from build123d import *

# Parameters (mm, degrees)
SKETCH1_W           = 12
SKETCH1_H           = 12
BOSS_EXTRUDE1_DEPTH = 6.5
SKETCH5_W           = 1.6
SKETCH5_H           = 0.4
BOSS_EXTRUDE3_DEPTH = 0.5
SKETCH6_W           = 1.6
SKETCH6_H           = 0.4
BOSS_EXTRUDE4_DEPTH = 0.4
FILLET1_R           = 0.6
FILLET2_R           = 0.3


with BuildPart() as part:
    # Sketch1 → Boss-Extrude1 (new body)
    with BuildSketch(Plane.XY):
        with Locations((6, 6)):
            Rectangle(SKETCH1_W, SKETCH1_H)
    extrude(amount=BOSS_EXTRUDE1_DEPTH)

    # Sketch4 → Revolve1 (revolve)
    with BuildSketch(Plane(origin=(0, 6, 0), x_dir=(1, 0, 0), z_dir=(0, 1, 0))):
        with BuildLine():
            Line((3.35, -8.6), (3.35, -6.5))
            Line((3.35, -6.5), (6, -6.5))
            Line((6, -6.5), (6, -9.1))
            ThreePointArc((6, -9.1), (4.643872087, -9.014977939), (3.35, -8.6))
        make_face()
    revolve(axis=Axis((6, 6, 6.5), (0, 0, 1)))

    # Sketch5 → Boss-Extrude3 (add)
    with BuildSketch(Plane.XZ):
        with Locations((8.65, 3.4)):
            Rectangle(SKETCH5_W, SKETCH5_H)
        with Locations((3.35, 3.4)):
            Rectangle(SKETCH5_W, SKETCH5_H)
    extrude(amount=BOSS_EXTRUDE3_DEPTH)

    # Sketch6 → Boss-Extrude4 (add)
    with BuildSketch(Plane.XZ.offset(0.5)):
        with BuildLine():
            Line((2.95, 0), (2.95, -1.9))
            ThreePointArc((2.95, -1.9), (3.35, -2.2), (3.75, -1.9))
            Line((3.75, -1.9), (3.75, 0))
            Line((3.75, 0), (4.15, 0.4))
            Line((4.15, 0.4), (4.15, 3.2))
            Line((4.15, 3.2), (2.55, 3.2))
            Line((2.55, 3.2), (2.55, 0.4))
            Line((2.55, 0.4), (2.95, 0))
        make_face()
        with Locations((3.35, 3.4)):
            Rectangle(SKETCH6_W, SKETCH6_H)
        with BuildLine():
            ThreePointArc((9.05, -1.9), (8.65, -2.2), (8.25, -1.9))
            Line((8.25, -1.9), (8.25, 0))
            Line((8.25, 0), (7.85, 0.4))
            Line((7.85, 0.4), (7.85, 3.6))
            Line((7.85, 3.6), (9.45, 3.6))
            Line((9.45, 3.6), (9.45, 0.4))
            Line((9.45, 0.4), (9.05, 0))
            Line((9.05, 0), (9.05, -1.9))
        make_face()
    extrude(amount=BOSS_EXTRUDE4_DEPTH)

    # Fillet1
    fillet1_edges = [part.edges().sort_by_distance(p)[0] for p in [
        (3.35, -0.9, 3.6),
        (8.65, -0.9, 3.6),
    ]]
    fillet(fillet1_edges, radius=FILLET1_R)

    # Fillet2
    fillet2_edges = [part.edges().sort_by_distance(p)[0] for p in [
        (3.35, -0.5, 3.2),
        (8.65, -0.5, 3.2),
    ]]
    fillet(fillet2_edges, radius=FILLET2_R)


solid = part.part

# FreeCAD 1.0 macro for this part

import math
import FreeCAD as App
import Part
import Sketcher
from FreeCAD import Vector
Q = App.Units.Quantity


def edges_at(feature, points):
    """Names of the edges that pass closest to the given points."""
    edges = feature.Shape.Edges
    near = lambda p: min(range(len(edges)), key=lambda i: edges[i].distToShape(Part.Vertex(*p))[0])
    return sorted({f"Edge{near(p) + 1}" for p in points})

doc = App.newDocument("Part")
params = doc.addObject("Spreadsheet::Sheet", "Params")
for row, (alias, value) in enumerate([
    ("sketch1_width", "12 mm"),
    ("pad1_length", "6.5 mm"),
    ("sketch2_height", "2.1 mm"),
    ("sketch2_height2", "2.6 mm"),
    ("sketch2_width", "2.65 mm"),
    ("revolution_angle", "360 deg"),
    ("sketch3_width", "1.6 mm"),
    ("sketch3_height", "0.4 mm"),
    ("pad2_length", "0.5 mm"),
    ("sketch4_width", "1.6 mm"),
    ("sketch4_height", "1.9 mm"),
    ("sketch4_height2", "3.2 mm"),
    ("pad3_length", "0.4 mm"),
    ("fillet_radius", "0.6 mm"),
    ("fillet2_radius", "0.3 mm"),
], start=1):
    params.set(f"A{row}", alias)
    params.set(f"B{row}", "=" + value)
    params.setAlias(f"B{row}", alias)

body = doc.addObject("PartDesign::Body", "Body")

# Sketch on XY plane
sketch1 = body.newObject("Sketcher::SketchObject", "Sketch")
sketch1.AttachmentSupport = (doc.getObject("XY_Plane"), [""])
sketch1.MapMode = "FlatFace"
sketch1.addGeometry([
    Part.LineSegment(Vector(0, 12, 0), Vector(0, 0, 0)),
    Part.LineSegment(Vector(0, 0, 0), Vector(12, 0, 0)),
    Part.LineSegment(Vector(12, 0, 0), Vector(12, 12, 0)),
    Part.LineSegment(Vector(12, 12, 0), Vector(0, 12, 0)),
], False)
sketch1.addConstraint([
    Sketcher.Constraint("Coincident", 0, 2, 1, 1),
    Sketcher.Constraint("Coincident", 1, 2, 2, 1),
    Sketcher.Constraint("Coincident", 2, 2, 3, 1),
    Sketcher.Constraint("Coincident", 3, 2, 0, 1),
    Sketcher.Constraint("Vertical", 0),
    Sketcher.Constraint("Horizontal", 1),
    Sketcher.Constraint("Vertical", 2),
    Sketcher.Constraint("Horizontal", 3),
    Sketcher.Constraint("Coincident", 0, 2, -1, 1),
    Sketcher.Constraint("Equal", 3, 0),
    Sketcher.Constraint("DistanceX", 1, 1, 1, 2, Q("12 mm")),
])
sketch1.setExpression("Constraints[10]", "Params.sketch1_width")
pad1 = body.newObject("PartDesign::Pad", "Pad")
pad1.Profile = sketch1
pad1.setExpression("Length", "Params.pad1_length")

# Sketch on XZ plane
sketch2 = body.newObject("Sketcher::SketchObject", "Sketch001")
sketch2.AttachmentSupport = (doc.getObject("XZ_Plane"), [""])
sketch2.MapMode = "FlatFace"
sketch2.AttachmentOffset = App.Placement(Vector(0, 0, -6), App.Rotation())
sketch2.addGeometry([
    Part.LineSegment(Vector(3.4, 6.5, 0), Vector(3.4, 8.6, 0)),
    Part.ArcOfCircle(Part.Circle(Vector(5.7, 3.6, 0), Vector(0, 0, 1), 5.5), math.radians(86), math.radians(115)),
    Part.LineSegment(Vector(6, 9.1, 0), Vector(6, 6.5, 0)),
    Part.LineSegment(Vector(6, 6.5, 0), Vector(3.4, 6.5, 0)),
], False)
sketch2.addGeometry(Part.LineSegment(Vector(6, 3.6, 0), Vector(6, 9.1, 0)), True)  # axis
sketch2.addConstraint([
    Sketcher.Constraint("Coincident", 0, 2, 1, 2),
    Sketcher.Constraint("Coincident", 1, 1, 2, 1),
    Sketcher.Constraint("Coincident", 2, 2, 3, 1),
    Sketcher.Constraint("Coincident", 3, 2, 0, 1),
    Sketcher.Constraint("Vertical", 0),
    Sketcher.Constraint("Vertical", 2),
    Sketcher.Constraint("Horizontal", 3),
    Sketcher.Constraint("Vertical", 4),
    Sketcher.Constraint("Coincident", 4, 2, 1, 1),
    Sketcher.Constraint("Horizontal", 1, 3, 4, 1),
    Sketcher.Constraint("DistanceY", 0, 1, 0, 2, Q("2.1 mm")),
    Sketcher.Constraint("DistanceY", 2, 2, 2, 1, Q("2.6 mm")),
    Sketcher.Constraint("DistanceX", -1, 1, 1, 1, Q("6 mm")),
    Sketcher.Constraint("DistanceX", 3, 2, 3, 1, Q("2.65 mm")),
    Sketcher.Constraint("DistanceY", -1, 1, 0, 2, Q("8.6 mm")),
    Sketcher.Constraint("DistanceY", 4, 1, 4, 2, Q("5.488298 mm")),
])
sketch2.setExpression("Constraints[10]", "Params.sketch2_height")
sketch2.setExpression("Constraints[11]", "Params.sketch2_height2")
sketch2.setExpression("Constraints[13]", "Params.sketch2_width")
revolution = body.newObject("PartDesign::Revolution", "Revolution")
revolution.Profile = sketch2
revolution.ReferenceAxis = (sketch2, ["Axis0"])
revolution.setExpression("Angle", "Params.revolution_angle")

# Sketch on XZ plane
sketch3 = body.newObject("Sketcher::SketchObject", "Sketch002")
sketch3.AttachmentSupport = (doc.getObject("XZ_Plane"), [""])
sketch3.MapMode = "FlatFace"
sketch3.addGeometry([
    Part.LineSegment(Vector(7.85, 3.6, 0), Vector(7.85, 3.2, 0)),  # 0
    Part.LineSegment(Vector(7.85, 3.2, 0), Vector(9.45, 3.2, 0)),  # 1
    Part.LineSegment(Vector(9.45, 3.2, 0), Vector(9.45, 3.6, 0)),  # 2
    Part.LineSegment(Vector(9.45, 3.6, 0), Vector(7.85, 3.6, 0)),  # 3
    Part.LineSegment(Vector(2.55, 3.6, 0), Vector(2.55, 3.2, 0)),  # 4
    Part.LineSegment(Vector(2.55, 3.2, 0), Vector(4.15, 3.2, 0)),  # 5
    Part.LineSegment(Vector(4.15, 3.2, 0), Vector(4.15, 3.6, 0)),  # 6
    Part.LineSegment(Vector(4.15, 3.6, 0), Vector(2.55, 3.6, 0)),  # 7
], False)
sketch3.addConstraint([
    Sketcher.Constraint("Coincident", 0, 2, 1, 1),
    Sketcher.Constraint("Coincident", 1, 2, 2, 1),
    Sketcher.Constraint("Coincident", 2, 2, 3, 1),
    Sketcher.Constraint("Coincident", 3, 2, 0, 1),
    Sketcher.Constraint("Coincident", 4, 2, 5, 1),
    Sketcher.Constraint("Coincident", 5, 2, 6, 1),
    Sketcher.Constraint("Coincident", 6, 2, 7, 1),
    Sketcher.Constraint("Coincident", 7, 2, 4, 1),
    Sketcher.Constraint("Vertical", 0),
    Sketcher.Constraint("Horizontal", 1),
    Sketcher.Constraint("Vertical", 2),
    Sketcher.Constraint("Horizontal", 3),
    Sketcher.Constraint("Vertical", 4),
    Sketcher.Constraint("Horizontal", 5),
    Sketcher.Constraint("Vertical", 6),
    Sketcher.Constraint("Horizontal", 7),
    Sketcher.Constraint("Horizontal", 1, 2, 4, 2),
    Sketcher.Constraint("Horizontal", 3, 2, 6, 2),
    Sketcher.Constraint("Equal", 3, 5),
    Sketcher.Constraint("DistanceX", 1, 1, 1, 2, Q("1.6 mm")),
    Sketcher.Constraint("DistanceY", 0, 2, 0, 1, Q("0.4 mm")),
    Sketcher.Constraint("DistanceY", -1, 1, 0, 2, Q("3.2 mm")),
    Sketcher.Constraint("DistanceX", 4, 2, 0, 2, Q("5.3 mm")),
    Sketcher.Constraint("DistanceX", -1, 1, 0, 2, Q("7.85 mm")),
])
sketch3.setExpression("Constraints[19]", "Params.sketch3_width")
sketch3.setExpression("Constraints[20]", "Params.sketch3_height")
pad2 = body.newObject("PartDesign::Pad", "Pad001")
pad2.Profile = sketch3
pad2.setExpression("Length", "Params.pad2_length")

# Sketch on XZ plane
sketch4 = body.newObject("Sketcher::SketchObject", "Sketch003")
sketch4.AttachmentSupport = (doc.getObject("XZ_Plane"), [""])
sketch4.MapMode = "FlatFace"
sketch4.AttachmentOffset = App.Placement(Vector(0, 0, 0.5), App.Rotation())
sketch4.addGeometry([
    Part.LineSegment(Vector(2.95, 0, 0), Vector(2.95, -1.9, 0)),  # 0
    Part.ArcOfCircle(Part.Circle(Vector(3.35, -1.78, 0), Vector(0, 0, 1), 0.42), math.radians(-164), math.radians(-16)),  # 1
    Part.LineSegment(Vector(3.75, -1.9, 0), Vector(3.75, 0, 0)),  # 2
    Part.LineSegment(Vector(3.75, 0, 0), Vector(4.15, 0.4, 0)),  # 3
    Part.LineSegment(Vector(4.15, 0.4, 0), Vector(4.15, 3.6, 0)),  # 4
    Part.LineSegment(Vector(4.15, 3.6, 0), Vector(2.55, 3.6, 0)),  # 5
    Part.LineSegment(Vector(2.55, 3.6, 0), Vector(2.55, 0.4, 0)),  # 6
    Part.LineSegment(Vector(2.55, 0.4, 0), Vector(2.95, 0, 0)),  # 7
    Part.ArcOfCircle(Part.Circle(Vector(8.65, -1.78, 0), Vector(0, 0, 1), 0.42), math.radians(-164), math.radians(-16)),  # 8
    Part.LineSegment(Vector(9.05, -1.9, 0), Vector(9.05, 0, 0)),  # 9
    Part.LineSegment(Vector(9.05, 0, 0), Vector(9.45, 0.4, 0)),  # 10
    Part.LineSegment(Vector(9.45, 0.4, 0), Vector(9.45, 3.6, 0)),  # 11
    Part.LineSegment(Vector(9.45, 3.6, 0), Vector(7.85, 3.6, 0)),  # 12
    Part.LineSegment(Vector(7.85, 3.6, 0), Vector(7.85, 0.4, 0)),  # 13
    Part.LineSegment(Vector(7.85, 0.4, 0), Vector(8.25, 0, 0)),  # 14
    Part.LineSegment(Vector(8.25, 0, 0), Vector(8.25, -1.9, 0)),  # 15
], False)
sketch4.addConstraint([
    Sketcher.Constraint("Coincident", 0, 2, 1, 1),
    Sketcher.Constraint("Coincident", 1, 2, 2, 1),
    Sketcher.Constraint("Coincident", 2, 2, 3, 1),
    Sketcher.Constraint("Coincident", 3, 2, 4, 1),
    Sketcher.Constraint("Coincident", 4, 2, 5, 1),
    Sketcher.Constraint("Coincident", 5, 2, 6, 1),
    Sketcher.Constraint("Coincident", 6, 2, 7, 1),
    Sketcher.Constraint("Coincident", 7, 2, 0, 1),
    Sketcher.Constraint("Coincident", 8, 2, 9, 1),
    Sketcher.Constraint("Coincident", 9, 2, 10, 1),
    Sketcher.Constraint("Coincident", 10, 2, 11, 1),
    Sketcher.Constraint("Coincident", 11, 2, 12, 1),
    Sketcher.Constraint("Coincident", 12, 2, 13, 1),
    Sketcher.Constraint("Coincident", 13, 2, 14, 1),
    Sketcher.Constraint("Coincident", 14, 2, 15, 1),
    Sketcher.Constraint("Coincident", 15, 2, 8, 1),
    Sketcher.Constraint("Vertical", 0),
    Sketcher.Constraint("Vertical", 2),
    Sketcher.Constraint("Vertical", 4),
    Sketcher.Constraint("Horizontal", 5),
    Sketcher.Constraint("Vertical", 6),
    Sketcher.Constraint("Vertical", 9),
    Sketcher.Constraint("Vertical", 11),
    Sketcher.Constraint("Horizontal", 12),
    Sketcher.Constraint("Vertical", 13),
    Sketcher.Constraint("Vertical", 15),
    Sketcher.Constraint("Equal", 1, 8),
    Sketcher.Constraint("PointOnObject", 2, 2, -1),
    Sketcher.Constraint("PointOnObject", 7, 2, -1),
    Sketcher.Constraint("PointOnObject", 9, 2, -1),
    Sketcher.Constraint("PointOnObject", 14, 2, -1),
    Sketcher.Constraint("Perpendicular", 3, 7),
    Sketcher.Constraint("Perpendicular", 7, 10),
    Sketcher.Constraint("Perpendicular", 10, 14),
    Sketcher.Constraint("Horizontal", 1, 3, 8, 3),
    Sketcher.Constraint("Horizontal", 0, 2, 1, 2),
    Sketcher.Constraint("Horizontal", 3, 2, 6, 2),
    Sketcher.Constraint("Horizontal", 1, 2, 8, 2),
    Sketcher.Constraint("Horizontal", 6, 2, 10, 2),
    Sketcher.Constraint("Horizontal", 5, 2, 11, 2),
    Sketcher.Constraint("Horizontal", 10, 2, 13, 2),
    Sketcher.Constraint("Horizontal", 8, 2, 15, 2),
    Sketcher.Constraint("Equal", 3, 7),
    Sketcher.Constraint("DistanceX", 5, 2, 5, 1, Q("1.6 mm")),
    Sketcher.Constraint("DistanceY", 0, 2, 0, 1, Q("1.9 mm")),
    Sketcher.Constraint("DistanceY", 4, 1, 4, 2, Q("3.2 mm")),
    Sketcher.Constraint("DistanceY", -1, 1, 3, 2, Q("0.4 mm")),
    Sketcher.Constraint("DistanceX", 1, 3, 8, 3, Q("5.3 mm")),
    Sketcher.Constraint("DistanceX", -1, 1, 1, 3, Q("3.35 mm")),
    Sketcher.Constraint("Radius", 1, Q("0.416667 mm")),
])
sketch4.setExpression("Constraints[43]", "Params.sketch4_width")
sketch4.setExpression("Constraints[44]", "Params.sketch4_height")
sketch4.setExpression("Constraints[45]", "Params.sketch4_height2")
pad3 = body.newObject("PartDesign::Pad", "Pad002")
pad3.Profile = sketch4
pad3.setExpression("Length", "Params.pad3_length")
doc.recompute()

fillet = body.newObject("PartDesign::Fillet", "Fillet")
fillet.Base = (pad3, edges_at(pad3, [(3.35, -0.9, 3.6), (8.65, -0.9, 3.6)]))
fillet.setExpression("Radius", "Params.fillet_radius")
doc.recompute()

fillet2 = body.newObject("PartDesign::Fillet", "Fillet001")
fillet2.Base = (fillet, edges_at(fillet, [(3.35, -0.5, 3.2), (8.65, -0.5, 3.2)]))
fillet2.setExpression("Radius", "Params.fillet2_radius")

doc.recompute()
